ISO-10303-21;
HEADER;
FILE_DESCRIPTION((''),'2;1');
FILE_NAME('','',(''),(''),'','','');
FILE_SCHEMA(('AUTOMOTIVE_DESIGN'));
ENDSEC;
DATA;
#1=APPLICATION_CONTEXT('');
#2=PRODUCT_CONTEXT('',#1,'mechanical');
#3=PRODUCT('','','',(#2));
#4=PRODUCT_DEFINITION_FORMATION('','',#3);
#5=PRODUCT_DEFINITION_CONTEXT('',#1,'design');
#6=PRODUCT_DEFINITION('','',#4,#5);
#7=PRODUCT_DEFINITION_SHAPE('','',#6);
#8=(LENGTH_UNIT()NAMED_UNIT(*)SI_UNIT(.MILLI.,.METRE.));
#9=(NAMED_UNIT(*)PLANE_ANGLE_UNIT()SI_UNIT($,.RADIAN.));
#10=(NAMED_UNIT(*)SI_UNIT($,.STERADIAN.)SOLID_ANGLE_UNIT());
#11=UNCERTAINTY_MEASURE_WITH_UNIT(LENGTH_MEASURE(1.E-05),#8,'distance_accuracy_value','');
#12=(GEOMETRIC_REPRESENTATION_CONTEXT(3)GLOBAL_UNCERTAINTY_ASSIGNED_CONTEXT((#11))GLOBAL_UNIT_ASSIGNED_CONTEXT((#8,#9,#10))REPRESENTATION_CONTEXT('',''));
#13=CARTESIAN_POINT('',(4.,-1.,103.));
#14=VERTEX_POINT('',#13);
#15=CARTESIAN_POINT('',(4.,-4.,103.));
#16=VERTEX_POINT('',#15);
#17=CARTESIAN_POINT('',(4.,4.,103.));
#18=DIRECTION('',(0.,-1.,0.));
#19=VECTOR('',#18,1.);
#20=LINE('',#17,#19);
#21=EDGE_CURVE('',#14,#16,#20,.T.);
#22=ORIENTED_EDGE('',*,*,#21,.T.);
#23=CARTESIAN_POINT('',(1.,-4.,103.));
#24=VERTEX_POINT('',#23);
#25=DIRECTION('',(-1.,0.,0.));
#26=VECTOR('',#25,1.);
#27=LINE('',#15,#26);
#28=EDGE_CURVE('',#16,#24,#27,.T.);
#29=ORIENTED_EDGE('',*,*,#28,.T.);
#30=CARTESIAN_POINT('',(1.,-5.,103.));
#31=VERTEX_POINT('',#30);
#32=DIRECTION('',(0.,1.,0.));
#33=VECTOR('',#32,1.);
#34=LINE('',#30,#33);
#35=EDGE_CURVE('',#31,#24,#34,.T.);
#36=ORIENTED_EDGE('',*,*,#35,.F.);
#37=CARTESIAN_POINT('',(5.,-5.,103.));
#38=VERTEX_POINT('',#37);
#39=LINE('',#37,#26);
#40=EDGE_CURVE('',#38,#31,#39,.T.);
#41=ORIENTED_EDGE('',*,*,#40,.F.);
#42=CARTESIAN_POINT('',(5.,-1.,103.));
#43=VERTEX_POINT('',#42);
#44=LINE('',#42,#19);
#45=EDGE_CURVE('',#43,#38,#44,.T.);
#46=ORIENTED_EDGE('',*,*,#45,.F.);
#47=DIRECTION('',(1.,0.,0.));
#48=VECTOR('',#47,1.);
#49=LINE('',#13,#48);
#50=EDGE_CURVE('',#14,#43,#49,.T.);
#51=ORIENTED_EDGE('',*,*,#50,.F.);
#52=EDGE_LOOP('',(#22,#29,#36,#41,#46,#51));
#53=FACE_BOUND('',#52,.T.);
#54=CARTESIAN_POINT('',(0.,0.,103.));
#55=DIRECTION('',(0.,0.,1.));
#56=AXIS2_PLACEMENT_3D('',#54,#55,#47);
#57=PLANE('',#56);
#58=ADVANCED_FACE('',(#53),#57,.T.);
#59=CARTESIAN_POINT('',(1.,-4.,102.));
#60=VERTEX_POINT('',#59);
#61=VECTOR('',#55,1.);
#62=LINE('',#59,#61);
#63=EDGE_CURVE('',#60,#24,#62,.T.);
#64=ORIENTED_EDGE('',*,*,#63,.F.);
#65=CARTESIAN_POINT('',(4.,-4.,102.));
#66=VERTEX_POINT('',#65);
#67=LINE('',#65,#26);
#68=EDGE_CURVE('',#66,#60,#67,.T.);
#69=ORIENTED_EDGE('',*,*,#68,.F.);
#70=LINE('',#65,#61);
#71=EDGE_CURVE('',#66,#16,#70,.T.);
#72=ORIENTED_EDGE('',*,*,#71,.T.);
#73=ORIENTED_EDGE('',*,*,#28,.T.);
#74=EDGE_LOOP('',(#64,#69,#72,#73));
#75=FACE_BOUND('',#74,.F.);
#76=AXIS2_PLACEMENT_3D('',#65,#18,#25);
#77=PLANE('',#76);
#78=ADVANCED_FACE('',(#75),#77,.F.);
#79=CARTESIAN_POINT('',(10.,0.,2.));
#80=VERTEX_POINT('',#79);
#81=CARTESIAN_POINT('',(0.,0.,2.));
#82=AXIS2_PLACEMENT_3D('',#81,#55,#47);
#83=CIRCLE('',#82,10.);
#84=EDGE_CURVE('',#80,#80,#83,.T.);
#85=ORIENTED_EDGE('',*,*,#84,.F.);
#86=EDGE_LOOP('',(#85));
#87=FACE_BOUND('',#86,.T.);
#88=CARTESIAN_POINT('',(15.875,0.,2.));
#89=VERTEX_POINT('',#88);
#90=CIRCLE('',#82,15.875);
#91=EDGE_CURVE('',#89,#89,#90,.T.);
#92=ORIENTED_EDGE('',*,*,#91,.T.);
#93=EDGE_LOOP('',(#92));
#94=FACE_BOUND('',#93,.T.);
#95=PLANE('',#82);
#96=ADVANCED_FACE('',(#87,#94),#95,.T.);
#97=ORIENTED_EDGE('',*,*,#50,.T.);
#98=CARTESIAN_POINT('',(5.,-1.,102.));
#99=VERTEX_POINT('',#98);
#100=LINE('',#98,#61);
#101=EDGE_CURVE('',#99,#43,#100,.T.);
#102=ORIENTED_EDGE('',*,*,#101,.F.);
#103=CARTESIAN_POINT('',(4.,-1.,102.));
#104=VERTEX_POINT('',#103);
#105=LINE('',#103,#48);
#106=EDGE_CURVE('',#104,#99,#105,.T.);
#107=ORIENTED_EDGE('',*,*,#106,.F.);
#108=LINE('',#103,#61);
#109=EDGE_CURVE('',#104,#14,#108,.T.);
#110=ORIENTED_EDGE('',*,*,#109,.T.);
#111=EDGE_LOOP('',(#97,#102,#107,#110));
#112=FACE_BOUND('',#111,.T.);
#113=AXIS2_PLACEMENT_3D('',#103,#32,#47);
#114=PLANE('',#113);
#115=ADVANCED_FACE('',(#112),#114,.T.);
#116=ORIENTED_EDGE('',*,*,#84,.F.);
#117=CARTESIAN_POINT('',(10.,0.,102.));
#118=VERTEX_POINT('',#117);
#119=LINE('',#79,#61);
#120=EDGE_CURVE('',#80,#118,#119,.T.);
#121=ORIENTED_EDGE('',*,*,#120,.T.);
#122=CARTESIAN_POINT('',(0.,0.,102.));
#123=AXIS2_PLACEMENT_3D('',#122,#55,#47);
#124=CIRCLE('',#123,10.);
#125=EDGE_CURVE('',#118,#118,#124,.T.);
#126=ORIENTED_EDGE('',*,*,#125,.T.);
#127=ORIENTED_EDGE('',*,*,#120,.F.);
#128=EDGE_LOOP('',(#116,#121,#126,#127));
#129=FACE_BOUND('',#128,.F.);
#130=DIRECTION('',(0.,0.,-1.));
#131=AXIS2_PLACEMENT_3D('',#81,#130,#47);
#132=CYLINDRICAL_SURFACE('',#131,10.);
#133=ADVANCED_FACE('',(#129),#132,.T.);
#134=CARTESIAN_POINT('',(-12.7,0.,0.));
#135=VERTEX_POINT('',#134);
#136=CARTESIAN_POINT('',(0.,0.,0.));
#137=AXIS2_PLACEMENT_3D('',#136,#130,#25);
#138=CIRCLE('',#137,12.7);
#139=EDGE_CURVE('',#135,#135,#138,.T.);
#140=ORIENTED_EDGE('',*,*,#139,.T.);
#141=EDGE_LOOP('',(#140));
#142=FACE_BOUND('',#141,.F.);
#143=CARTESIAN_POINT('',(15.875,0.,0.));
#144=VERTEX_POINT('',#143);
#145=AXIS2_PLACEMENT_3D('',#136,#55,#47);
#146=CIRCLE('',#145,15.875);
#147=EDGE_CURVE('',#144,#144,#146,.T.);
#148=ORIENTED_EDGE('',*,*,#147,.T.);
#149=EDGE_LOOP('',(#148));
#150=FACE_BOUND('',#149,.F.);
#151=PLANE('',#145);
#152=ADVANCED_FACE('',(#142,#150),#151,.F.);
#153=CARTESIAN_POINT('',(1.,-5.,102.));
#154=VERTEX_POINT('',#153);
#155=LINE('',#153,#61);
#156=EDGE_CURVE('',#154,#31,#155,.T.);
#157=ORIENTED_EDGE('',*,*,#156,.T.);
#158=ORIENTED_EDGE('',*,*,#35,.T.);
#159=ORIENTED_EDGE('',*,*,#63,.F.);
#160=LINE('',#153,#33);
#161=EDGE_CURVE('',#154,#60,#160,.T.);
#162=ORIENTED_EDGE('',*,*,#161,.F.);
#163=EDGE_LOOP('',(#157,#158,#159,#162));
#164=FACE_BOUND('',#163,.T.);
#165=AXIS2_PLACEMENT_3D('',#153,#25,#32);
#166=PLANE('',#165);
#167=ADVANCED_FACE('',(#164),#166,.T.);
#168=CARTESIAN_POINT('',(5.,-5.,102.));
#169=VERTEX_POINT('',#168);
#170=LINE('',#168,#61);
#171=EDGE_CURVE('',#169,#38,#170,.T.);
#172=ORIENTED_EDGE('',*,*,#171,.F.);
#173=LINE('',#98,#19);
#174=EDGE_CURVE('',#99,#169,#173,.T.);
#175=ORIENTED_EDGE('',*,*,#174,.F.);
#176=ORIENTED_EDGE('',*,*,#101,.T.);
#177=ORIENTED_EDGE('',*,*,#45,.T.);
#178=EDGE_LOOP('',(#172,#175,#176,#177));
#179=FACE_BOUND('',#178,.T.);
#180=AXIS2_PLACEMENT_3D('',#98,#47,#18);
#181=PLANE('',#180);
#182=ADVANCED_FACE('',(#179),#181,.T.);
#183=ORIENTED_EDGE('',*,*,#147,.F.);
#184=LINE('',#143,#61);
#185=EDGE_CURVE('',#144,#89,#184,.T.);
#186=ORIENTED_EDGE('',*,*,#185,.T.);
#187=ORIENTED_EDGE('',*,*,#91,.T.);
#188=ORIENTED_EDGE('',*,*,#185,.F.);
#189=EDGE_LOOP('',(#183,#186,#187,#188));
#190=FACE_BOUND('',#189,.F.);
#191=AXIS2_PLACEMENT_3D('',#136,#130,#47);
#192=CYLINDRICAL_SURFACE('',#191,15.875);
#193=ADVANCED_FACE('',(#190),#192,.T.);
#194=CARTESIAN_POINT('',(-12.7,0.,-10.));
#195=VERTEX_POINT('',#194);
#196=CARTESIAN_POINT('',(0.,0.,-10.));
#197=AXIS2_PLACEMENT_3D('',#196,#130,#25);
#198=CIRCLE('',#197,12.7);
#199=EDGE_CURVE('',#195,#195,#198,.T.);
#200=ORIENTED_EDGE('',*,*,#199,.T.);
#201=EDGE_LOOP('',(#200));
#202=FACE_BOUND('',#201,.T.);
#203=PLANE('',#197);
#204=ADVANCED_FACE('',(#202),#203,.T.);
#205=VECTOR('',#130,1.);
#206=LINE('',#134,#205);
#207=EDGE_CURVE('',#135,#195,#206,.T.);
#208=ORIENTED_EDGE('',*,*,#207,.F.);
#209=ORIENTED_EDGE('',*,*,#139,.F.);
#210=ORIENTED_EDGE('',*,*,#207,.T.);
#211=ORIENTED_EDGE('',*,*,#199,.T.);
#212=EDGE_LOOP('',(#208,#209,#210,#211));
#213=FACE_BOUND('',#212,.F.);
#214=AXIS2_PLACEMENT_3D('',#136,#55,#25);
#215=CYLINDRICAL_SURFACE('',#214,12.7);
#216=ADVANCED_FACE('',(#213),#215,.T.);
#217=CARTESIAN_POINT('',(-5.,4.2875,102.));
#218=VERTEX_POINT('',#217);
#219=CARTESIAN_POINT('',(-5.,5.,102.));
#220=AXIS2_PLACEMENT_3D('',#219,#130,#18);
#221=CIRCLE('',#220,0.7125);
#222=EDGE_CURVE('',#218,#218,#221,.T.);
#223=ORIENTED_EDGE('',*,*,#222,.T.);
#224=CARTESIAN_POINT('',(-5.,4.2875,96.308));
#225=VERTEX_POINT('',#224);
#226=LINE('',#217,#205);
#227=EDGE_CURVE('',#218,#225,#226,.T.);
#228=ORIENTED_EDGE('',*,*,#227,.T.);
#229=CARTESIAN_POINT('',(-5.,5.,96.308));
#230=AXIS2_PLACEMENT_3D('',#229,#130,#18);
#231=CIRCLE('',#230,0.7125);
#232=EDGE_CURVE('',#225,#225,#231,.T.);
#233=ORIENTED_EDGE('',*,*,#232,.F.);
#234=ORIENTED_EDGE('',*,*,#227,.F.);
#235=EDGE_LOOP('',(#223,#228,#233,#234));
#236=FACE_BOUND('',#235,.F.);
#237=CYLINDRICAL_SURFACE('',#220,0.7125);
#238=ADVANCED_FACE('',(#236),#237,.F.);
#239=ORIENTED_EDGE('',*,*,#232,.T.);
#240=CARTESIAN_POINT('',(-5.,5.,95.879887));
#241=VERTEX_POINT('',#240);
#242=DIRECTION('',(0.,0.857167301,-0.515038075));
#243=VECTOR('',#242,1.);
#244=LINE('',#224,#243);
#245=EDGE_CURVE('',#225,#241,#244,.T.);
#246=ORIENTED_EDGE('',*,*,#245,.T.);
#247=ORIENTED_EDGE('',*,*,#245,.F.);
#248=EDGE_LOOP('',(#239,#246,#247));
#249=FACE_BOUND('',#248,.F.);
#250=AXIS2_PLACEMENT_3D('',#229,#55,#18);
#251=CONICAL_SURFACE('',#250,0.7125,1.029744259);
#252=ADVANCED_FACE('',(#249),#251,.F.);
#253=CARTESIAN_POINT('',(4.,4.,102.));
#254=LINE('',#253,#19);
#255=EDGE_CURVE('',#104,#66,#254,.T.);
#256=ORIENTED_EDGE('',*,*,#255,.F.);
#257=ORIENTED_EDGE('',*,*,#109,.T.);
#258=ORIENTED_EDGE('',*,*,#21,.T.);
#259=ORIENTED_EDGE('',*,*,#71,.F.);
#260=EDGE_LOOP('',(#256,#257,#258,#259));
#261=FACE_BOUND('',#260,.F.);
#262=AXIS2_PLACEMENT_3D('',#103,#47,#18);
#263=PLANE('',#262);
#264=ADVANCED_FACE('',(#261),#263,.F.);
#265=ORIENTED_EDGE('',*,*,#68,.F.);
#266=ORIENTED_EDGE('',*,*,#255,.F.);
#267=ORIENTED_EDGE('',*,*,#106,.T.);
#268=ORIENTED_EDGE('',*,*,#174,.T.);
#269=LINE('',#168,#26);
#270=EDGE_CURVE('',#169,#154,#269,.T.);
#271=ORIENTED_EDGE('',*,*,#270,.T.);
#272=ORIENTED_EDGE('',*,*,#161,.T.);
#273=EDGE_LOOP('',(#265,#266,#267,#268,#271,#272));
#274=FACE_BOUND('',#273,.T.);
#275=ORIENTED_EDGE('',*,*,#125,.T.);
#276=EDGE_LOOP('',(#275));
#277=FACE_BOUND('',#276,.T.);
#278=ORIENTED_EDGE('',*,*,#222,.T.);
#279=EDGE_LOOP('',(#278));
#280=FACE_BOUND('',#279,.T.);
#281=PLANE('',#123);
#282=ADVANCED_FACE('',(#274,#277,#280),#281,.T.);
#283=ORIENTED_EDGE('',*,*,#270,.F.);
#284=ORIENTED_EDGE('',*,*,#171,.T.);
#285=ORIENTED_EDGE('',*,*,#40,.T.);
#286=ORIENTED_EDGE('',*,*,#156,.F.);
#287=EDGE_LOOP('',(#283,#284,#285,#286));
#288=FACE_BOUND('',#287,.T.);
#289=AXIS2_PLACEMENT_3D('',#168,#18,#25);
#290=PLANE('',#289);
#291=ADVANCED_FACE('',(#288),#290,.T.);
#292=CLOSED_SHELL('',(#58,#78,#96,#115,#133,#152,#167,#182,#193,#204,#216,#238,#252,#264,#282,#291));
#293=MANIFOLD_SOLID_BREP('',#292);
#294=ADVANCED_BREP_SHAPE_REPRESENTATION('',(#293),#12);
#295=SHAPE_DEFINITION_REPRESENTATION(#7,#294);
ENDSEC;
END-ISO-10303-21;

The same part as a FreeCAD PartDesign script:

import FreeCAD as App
import Part
import Sketcher
from FreeCAD import Vector


def add_polygon(sketch, points):
    """Adds a closed chain of lines whose ends are joined by coincident constraints."""
    first, n = sketch.GeometryCount, len(points)
    for a, b in zip(points, points[1:] + points[:1]):
        sketch.addGeometry(Part.LineSegment(App.Vector(*a, 0), App.Vector(*b, 0)), False)
    for i in range(n):
        sketch.addConstraint(Sketcher.Constraint("Coincident", first + i, 2, first + (i + 1) % n, 1))

doc = App.newDocument("Part")
body = doc.addObject("PartDesign::Body", "Body")

# Sketch on XY plane
sketch1 = body.newObject("Sketcher::SketchObject", "Sketch")
sketch1.AttachmentSupport = (doc.getObject("XY_Plane"), [""])
sketch1.MapMode = "FlatFace"
sketch1.addGeometry(Part.Circle(Vector(0, 0, 0), Vector(0, 0, 1), 16), False)
sketch1.addConstraint(Sketcher.Constraint("Coincident", 0, 3, -1, 1))
sketch1.addConstraint(Sketcher.Constraint("Diameter", 0, 31.75))
pad1 = body.newObject("PartDesign::Pad", "Pad")
pad1.Profile = sketch1
pad1.Length = 2

# Sketch on XY plane
sketch2 = body.newObject("Sketcher::SketchObject", "Sketch001")
sketch2.AttachmentSupport = (doc.getObject("XY_Plane"), [""])
sketch2.MapMode = "FlatFace"
sketch2.AttachmentOffset = App.Placement(Vector(0, 0, 2), App.Rotation())
sketch2.addGeometry(Part.Circle(Vector(0, 0, 0), Vector(0, 0, 1), 10), False)
sketch2.addConstraint(Sketcher.Constraint("Coincident", 0, 3, -1, 1))
sketch2.addConstraint(Sketcher.Constraint("Diameter", 0, 20.0))
pad2 = body.newObject("PartDesign::Pad", "Pad001")
pad2.Profile = sketch2
pad2.Length = 100

# Sketch on XY plane
sketch3 = body.newObject("Sketcher::SketchObject", "Sketch002")
sketch3.AttachmentSupport = (doc.getObject("XY_Plane"), [""])
sketch3.MapMode = "FlatFace"
sketch3.addGeometry(Part.Circle(Vector(0, 0, 0), Vector(0, 0, 1), 13), False)
sketch3.addConstraint(Sketcher.Constraint("Coincident", 0, 3, -1, 1))
sketch3.addConstraint(Sketcher.Constraint("Diameter", 0, 25.4))
pad3 = body.newObject("PartDesign::Pad", "Pad002")
pad3.Profile = sketch3
pad3.Length = 10
pad3.Reversed = True

# Sketch on XY plane
sketch4 = body.newObject("Sketcher::SketchObject", "Sketch003")
sketch4.AttachmentSupport = (doc.getObject("XY_Plane"), [""])
sketch4.MapMode = "FlatFace"
sketch4.AttachmentOffset = App.Placement(Vector(0, 0, 102), App.Rotation())
add_polygon(sketch4, [(5, -1), (4, -1), (4, -4), (1, -4), (1, -5), (5, -5)])  # lines 0-5
sketch4.addConstraint(Sketcher.Constraint("Horizontal", 0))
sketch4.addConstraint(Sketcher.Constraint("Vertical", 1))
sketch4.addConstraint(Sketcher.Constraint("Horizontal", 2))
sketch4.addConstraint(Sketcher.Constraint("Vertical", 3))
sketch4.addConstraint(Sketcher.Constraint("Horizontal", 4))
sketch4.addConstraint(Sketcher.Constraint("Vertical", 5))
sketch4.addConstraint(Sketcher.Constraint("Equal", 2, 1))
sketch4.addConstraint(Sketcher.Constraint("Equal", 0, 3))
sketch4.addConstraint(Sketcher.Constraint("DistanceX", 0, 2, 0, 1, 1.0))
sketch4.addConstraint(Sketcher.Constraint("DistanceX", 4, 1, 4, 2, 4.0))
sketch4.addConstraint(Sketcher.Constraint("DistanceX", -1, 1, 0, 2, 4.0))
sketch4.addConstraint(Sketcher.Constraint("DistanceY", 0, 2, -1, 1, 1.0))
pad4 = body.newObject("PartDesign::Pad", "Pad003")
pad4.Profile = sketch4
pad4.Length = 1

# Sketch on XY plane
sketch5 = body.newObject("Sketcher::SketchObject", "Sketch004")
sketch5.AttachmentSupport = (doc.getObject("XY_Plane"), [""])
sketch5.MapMode = "FlatFace"
sketch5.AttachmentOffset = App.Placement(Vector(0, 0, 102), App.Rotation())
sketch5.addGeometry(Part.Circle(Vector(-5, 5, 0), Vector(0, 0, 1), 0.7), False)
sketch5.addConstraint(Sketcher.Constraint("Diameter", 0, 1.425))
sketch5.addConstraint(Sketcher.Constraint("DistanceX", 0, 3, -1, 1, 5.0))
sketch5.addConstraint(Sketcher.Constraint("DistanceY", -1, 1, 0, 3, 5.0))
doc.recompute()
hole = body.newObject("PartDesign::Hole", "Hole")
hole.Profile = sketch5
hole.ThreadType = "None"
hole.Diameter = 1.425
hole.DepthType = "Dimension"
hole.Depth = 5.692
hole.DrillPoint = "Angled"
hole.DrillPointAngle = 118

doc.recompute()
